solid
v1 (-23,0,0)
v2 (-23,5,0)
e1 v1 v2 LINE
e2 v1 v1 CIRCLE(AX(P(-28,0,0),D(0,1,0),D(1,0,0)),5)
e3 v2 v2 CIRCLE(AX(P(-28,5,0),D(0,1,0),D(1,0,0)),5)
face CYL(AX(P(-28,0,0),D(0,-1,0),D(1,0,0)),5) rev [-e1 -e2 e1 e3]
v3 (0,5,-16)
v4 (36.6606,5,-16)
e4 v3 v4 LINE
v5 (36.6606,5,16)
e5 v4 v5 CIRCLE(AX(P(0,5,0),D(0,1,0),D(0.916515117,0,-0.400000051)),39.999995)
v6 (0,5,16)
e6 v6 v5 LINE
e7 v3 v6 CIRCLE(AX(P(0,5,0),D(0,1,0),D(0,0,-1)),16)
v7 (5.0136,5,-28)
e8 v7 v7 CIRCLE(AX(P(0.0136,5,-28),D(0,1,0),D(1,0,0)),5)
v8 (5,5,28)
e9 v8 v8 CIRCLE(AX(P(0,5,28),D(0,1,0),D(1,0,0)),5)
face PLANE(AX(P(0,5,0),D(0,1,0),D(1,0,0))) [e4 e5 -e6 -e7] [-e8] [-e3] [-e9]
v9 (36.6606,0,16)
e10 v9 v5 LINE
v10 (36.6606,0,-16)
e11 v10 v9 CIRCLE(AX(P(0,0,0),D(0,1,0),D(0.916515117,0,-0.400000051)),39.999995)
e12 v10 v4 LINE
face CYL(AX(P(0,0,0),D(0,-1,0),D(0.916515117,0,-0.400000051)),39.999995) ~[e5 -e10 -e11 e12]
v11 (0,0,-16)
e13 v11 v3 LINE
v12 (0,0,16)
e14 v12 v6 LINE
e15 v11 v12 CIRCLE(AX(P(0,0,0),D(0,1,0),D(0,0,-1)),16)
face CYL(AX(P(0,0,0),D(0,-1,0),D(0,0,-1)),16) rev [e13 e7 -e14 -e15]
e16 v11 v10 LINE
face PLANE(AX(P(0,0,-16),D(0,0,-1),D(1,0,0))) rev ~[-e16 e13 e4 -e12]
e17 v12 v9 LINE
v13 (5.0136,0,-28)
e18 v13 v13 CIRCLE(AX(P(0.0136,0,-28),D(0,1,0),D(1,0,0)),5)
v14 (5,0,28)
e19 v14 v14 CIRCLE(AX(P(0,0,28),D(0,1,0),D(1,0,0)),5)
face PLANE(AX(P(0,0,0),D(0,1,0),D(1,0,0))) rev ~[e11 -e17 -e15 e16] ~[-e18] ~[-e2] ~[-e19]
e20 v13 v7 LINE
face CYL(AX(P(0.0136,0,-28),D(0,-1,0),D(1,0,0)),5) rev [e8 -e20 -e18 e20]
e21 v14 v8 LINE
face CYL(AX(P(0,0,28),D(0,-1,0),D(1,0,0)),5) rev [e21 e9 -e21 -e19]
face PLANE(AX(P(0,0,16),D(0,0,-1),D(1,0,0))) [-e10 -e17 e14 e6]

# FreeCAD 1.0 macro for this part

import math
import FreeCAD as App
import Part
import Sketcher
from FreeCAD import Vector
Q = App.Units.Quantity

doc = App.newDocument("Part")
body = doc.addObject("PartDesign::Body", "Body")

# Sketch on XZ plane
sketch1 = doc.addObject("Sketcher::SketchObject", "Sketch")
body.addObject(sketch1)
sketch1.AttachmentSupport = (doc.XZ_Plane, [""])
sketch1.MapMode = "FlatFace"
sketch1.addGeometry([
    Part.ArcOfCircle(Part.Circle(Vector(0, 0, 0), Vector(0, 0, 1), 16), math.radians(90), math.radians(270)),  # 0
    Part.LineSegment(Vector(0, -16, 0), Vector(37, -16, 0)),  # 1
    Part.ArcOfCircle(Part.Circle(Vector(0, 0, 0), Vector(0, 0, 1), 40), math.radians(24), math.radians(336)),  # 2
    Part.LineSegment(Vector(37, 16, 0), Vector(0, 16, 0)),  # 3
    Part.Circle(Vector(0, 28, 0), Vector(0, 0, 1), 5),  # 4
    Part.Circle(Vector(-28, 0, 0), Vector(0, 0, 1), 5),  # 5
    Part.Circle(Vector(0, -28, 0), Vector(0, 0, 1), 5),  # 6
], False)
sketch1.addConstraint([
    Sketcher.Constraint("Tangent", 0, 2, 1, 1),
    Sketcher.Constraint("Coincident", 1, 2, 2, 2),
    Sketcher.Constraint("Coincident", 2, 1, 3, 1),
    Sketcher.Constraint("Tangent", 3, 2, 0, 1),
    Sketcher.Constraint("Horizontal", 1),
    Sketcher.Constraint("Horizontal", 3),
    Sketcher.Constraint("Coincident", 0, 3, -1, 1),
    Sketcher.Constraint("Coincident", 2, 3, -1, 1),
    Sketcher.Constraint("Equal", 4, 5),
    Sketcher.Constraint("Equal", 5, 6),
    Sketcher.Constraint("PointOnObject", 4, 3, -2),
    Sketcher.Constraint("PointOnObject", 5, 3, -1),
    Sketcher.Constraint("Diameter", 4, Q("10 mm")),
    Sketcher.Constraint("Radius", 0, Q("16 mm")),
    Sketcher.Constraint("Radius", 2, Q("40 mm")),
    Sketcher.Constraint("DistanceY", -1, 1, 4, 3, Q("28 mm")),
    Sketcher.Constraint("DistanceX", 5, 3, -1, 1, Q("28 mm")),
    Sketcher.Constraint("DistanceY", 6, 3, -1, 1, Q("28 mm")),
    Sketcher.Constraint("DistanceX", 6, 3, 1, 2, Q("36.647 mm")),
])
pad1 = doc.addObject("PartDesign::Pad", "Pad")
body.addObject(pad1)
pad1.Profile = sketch1
pad1.Length = 5
pad1.Reversed = True

doc.recompute()
